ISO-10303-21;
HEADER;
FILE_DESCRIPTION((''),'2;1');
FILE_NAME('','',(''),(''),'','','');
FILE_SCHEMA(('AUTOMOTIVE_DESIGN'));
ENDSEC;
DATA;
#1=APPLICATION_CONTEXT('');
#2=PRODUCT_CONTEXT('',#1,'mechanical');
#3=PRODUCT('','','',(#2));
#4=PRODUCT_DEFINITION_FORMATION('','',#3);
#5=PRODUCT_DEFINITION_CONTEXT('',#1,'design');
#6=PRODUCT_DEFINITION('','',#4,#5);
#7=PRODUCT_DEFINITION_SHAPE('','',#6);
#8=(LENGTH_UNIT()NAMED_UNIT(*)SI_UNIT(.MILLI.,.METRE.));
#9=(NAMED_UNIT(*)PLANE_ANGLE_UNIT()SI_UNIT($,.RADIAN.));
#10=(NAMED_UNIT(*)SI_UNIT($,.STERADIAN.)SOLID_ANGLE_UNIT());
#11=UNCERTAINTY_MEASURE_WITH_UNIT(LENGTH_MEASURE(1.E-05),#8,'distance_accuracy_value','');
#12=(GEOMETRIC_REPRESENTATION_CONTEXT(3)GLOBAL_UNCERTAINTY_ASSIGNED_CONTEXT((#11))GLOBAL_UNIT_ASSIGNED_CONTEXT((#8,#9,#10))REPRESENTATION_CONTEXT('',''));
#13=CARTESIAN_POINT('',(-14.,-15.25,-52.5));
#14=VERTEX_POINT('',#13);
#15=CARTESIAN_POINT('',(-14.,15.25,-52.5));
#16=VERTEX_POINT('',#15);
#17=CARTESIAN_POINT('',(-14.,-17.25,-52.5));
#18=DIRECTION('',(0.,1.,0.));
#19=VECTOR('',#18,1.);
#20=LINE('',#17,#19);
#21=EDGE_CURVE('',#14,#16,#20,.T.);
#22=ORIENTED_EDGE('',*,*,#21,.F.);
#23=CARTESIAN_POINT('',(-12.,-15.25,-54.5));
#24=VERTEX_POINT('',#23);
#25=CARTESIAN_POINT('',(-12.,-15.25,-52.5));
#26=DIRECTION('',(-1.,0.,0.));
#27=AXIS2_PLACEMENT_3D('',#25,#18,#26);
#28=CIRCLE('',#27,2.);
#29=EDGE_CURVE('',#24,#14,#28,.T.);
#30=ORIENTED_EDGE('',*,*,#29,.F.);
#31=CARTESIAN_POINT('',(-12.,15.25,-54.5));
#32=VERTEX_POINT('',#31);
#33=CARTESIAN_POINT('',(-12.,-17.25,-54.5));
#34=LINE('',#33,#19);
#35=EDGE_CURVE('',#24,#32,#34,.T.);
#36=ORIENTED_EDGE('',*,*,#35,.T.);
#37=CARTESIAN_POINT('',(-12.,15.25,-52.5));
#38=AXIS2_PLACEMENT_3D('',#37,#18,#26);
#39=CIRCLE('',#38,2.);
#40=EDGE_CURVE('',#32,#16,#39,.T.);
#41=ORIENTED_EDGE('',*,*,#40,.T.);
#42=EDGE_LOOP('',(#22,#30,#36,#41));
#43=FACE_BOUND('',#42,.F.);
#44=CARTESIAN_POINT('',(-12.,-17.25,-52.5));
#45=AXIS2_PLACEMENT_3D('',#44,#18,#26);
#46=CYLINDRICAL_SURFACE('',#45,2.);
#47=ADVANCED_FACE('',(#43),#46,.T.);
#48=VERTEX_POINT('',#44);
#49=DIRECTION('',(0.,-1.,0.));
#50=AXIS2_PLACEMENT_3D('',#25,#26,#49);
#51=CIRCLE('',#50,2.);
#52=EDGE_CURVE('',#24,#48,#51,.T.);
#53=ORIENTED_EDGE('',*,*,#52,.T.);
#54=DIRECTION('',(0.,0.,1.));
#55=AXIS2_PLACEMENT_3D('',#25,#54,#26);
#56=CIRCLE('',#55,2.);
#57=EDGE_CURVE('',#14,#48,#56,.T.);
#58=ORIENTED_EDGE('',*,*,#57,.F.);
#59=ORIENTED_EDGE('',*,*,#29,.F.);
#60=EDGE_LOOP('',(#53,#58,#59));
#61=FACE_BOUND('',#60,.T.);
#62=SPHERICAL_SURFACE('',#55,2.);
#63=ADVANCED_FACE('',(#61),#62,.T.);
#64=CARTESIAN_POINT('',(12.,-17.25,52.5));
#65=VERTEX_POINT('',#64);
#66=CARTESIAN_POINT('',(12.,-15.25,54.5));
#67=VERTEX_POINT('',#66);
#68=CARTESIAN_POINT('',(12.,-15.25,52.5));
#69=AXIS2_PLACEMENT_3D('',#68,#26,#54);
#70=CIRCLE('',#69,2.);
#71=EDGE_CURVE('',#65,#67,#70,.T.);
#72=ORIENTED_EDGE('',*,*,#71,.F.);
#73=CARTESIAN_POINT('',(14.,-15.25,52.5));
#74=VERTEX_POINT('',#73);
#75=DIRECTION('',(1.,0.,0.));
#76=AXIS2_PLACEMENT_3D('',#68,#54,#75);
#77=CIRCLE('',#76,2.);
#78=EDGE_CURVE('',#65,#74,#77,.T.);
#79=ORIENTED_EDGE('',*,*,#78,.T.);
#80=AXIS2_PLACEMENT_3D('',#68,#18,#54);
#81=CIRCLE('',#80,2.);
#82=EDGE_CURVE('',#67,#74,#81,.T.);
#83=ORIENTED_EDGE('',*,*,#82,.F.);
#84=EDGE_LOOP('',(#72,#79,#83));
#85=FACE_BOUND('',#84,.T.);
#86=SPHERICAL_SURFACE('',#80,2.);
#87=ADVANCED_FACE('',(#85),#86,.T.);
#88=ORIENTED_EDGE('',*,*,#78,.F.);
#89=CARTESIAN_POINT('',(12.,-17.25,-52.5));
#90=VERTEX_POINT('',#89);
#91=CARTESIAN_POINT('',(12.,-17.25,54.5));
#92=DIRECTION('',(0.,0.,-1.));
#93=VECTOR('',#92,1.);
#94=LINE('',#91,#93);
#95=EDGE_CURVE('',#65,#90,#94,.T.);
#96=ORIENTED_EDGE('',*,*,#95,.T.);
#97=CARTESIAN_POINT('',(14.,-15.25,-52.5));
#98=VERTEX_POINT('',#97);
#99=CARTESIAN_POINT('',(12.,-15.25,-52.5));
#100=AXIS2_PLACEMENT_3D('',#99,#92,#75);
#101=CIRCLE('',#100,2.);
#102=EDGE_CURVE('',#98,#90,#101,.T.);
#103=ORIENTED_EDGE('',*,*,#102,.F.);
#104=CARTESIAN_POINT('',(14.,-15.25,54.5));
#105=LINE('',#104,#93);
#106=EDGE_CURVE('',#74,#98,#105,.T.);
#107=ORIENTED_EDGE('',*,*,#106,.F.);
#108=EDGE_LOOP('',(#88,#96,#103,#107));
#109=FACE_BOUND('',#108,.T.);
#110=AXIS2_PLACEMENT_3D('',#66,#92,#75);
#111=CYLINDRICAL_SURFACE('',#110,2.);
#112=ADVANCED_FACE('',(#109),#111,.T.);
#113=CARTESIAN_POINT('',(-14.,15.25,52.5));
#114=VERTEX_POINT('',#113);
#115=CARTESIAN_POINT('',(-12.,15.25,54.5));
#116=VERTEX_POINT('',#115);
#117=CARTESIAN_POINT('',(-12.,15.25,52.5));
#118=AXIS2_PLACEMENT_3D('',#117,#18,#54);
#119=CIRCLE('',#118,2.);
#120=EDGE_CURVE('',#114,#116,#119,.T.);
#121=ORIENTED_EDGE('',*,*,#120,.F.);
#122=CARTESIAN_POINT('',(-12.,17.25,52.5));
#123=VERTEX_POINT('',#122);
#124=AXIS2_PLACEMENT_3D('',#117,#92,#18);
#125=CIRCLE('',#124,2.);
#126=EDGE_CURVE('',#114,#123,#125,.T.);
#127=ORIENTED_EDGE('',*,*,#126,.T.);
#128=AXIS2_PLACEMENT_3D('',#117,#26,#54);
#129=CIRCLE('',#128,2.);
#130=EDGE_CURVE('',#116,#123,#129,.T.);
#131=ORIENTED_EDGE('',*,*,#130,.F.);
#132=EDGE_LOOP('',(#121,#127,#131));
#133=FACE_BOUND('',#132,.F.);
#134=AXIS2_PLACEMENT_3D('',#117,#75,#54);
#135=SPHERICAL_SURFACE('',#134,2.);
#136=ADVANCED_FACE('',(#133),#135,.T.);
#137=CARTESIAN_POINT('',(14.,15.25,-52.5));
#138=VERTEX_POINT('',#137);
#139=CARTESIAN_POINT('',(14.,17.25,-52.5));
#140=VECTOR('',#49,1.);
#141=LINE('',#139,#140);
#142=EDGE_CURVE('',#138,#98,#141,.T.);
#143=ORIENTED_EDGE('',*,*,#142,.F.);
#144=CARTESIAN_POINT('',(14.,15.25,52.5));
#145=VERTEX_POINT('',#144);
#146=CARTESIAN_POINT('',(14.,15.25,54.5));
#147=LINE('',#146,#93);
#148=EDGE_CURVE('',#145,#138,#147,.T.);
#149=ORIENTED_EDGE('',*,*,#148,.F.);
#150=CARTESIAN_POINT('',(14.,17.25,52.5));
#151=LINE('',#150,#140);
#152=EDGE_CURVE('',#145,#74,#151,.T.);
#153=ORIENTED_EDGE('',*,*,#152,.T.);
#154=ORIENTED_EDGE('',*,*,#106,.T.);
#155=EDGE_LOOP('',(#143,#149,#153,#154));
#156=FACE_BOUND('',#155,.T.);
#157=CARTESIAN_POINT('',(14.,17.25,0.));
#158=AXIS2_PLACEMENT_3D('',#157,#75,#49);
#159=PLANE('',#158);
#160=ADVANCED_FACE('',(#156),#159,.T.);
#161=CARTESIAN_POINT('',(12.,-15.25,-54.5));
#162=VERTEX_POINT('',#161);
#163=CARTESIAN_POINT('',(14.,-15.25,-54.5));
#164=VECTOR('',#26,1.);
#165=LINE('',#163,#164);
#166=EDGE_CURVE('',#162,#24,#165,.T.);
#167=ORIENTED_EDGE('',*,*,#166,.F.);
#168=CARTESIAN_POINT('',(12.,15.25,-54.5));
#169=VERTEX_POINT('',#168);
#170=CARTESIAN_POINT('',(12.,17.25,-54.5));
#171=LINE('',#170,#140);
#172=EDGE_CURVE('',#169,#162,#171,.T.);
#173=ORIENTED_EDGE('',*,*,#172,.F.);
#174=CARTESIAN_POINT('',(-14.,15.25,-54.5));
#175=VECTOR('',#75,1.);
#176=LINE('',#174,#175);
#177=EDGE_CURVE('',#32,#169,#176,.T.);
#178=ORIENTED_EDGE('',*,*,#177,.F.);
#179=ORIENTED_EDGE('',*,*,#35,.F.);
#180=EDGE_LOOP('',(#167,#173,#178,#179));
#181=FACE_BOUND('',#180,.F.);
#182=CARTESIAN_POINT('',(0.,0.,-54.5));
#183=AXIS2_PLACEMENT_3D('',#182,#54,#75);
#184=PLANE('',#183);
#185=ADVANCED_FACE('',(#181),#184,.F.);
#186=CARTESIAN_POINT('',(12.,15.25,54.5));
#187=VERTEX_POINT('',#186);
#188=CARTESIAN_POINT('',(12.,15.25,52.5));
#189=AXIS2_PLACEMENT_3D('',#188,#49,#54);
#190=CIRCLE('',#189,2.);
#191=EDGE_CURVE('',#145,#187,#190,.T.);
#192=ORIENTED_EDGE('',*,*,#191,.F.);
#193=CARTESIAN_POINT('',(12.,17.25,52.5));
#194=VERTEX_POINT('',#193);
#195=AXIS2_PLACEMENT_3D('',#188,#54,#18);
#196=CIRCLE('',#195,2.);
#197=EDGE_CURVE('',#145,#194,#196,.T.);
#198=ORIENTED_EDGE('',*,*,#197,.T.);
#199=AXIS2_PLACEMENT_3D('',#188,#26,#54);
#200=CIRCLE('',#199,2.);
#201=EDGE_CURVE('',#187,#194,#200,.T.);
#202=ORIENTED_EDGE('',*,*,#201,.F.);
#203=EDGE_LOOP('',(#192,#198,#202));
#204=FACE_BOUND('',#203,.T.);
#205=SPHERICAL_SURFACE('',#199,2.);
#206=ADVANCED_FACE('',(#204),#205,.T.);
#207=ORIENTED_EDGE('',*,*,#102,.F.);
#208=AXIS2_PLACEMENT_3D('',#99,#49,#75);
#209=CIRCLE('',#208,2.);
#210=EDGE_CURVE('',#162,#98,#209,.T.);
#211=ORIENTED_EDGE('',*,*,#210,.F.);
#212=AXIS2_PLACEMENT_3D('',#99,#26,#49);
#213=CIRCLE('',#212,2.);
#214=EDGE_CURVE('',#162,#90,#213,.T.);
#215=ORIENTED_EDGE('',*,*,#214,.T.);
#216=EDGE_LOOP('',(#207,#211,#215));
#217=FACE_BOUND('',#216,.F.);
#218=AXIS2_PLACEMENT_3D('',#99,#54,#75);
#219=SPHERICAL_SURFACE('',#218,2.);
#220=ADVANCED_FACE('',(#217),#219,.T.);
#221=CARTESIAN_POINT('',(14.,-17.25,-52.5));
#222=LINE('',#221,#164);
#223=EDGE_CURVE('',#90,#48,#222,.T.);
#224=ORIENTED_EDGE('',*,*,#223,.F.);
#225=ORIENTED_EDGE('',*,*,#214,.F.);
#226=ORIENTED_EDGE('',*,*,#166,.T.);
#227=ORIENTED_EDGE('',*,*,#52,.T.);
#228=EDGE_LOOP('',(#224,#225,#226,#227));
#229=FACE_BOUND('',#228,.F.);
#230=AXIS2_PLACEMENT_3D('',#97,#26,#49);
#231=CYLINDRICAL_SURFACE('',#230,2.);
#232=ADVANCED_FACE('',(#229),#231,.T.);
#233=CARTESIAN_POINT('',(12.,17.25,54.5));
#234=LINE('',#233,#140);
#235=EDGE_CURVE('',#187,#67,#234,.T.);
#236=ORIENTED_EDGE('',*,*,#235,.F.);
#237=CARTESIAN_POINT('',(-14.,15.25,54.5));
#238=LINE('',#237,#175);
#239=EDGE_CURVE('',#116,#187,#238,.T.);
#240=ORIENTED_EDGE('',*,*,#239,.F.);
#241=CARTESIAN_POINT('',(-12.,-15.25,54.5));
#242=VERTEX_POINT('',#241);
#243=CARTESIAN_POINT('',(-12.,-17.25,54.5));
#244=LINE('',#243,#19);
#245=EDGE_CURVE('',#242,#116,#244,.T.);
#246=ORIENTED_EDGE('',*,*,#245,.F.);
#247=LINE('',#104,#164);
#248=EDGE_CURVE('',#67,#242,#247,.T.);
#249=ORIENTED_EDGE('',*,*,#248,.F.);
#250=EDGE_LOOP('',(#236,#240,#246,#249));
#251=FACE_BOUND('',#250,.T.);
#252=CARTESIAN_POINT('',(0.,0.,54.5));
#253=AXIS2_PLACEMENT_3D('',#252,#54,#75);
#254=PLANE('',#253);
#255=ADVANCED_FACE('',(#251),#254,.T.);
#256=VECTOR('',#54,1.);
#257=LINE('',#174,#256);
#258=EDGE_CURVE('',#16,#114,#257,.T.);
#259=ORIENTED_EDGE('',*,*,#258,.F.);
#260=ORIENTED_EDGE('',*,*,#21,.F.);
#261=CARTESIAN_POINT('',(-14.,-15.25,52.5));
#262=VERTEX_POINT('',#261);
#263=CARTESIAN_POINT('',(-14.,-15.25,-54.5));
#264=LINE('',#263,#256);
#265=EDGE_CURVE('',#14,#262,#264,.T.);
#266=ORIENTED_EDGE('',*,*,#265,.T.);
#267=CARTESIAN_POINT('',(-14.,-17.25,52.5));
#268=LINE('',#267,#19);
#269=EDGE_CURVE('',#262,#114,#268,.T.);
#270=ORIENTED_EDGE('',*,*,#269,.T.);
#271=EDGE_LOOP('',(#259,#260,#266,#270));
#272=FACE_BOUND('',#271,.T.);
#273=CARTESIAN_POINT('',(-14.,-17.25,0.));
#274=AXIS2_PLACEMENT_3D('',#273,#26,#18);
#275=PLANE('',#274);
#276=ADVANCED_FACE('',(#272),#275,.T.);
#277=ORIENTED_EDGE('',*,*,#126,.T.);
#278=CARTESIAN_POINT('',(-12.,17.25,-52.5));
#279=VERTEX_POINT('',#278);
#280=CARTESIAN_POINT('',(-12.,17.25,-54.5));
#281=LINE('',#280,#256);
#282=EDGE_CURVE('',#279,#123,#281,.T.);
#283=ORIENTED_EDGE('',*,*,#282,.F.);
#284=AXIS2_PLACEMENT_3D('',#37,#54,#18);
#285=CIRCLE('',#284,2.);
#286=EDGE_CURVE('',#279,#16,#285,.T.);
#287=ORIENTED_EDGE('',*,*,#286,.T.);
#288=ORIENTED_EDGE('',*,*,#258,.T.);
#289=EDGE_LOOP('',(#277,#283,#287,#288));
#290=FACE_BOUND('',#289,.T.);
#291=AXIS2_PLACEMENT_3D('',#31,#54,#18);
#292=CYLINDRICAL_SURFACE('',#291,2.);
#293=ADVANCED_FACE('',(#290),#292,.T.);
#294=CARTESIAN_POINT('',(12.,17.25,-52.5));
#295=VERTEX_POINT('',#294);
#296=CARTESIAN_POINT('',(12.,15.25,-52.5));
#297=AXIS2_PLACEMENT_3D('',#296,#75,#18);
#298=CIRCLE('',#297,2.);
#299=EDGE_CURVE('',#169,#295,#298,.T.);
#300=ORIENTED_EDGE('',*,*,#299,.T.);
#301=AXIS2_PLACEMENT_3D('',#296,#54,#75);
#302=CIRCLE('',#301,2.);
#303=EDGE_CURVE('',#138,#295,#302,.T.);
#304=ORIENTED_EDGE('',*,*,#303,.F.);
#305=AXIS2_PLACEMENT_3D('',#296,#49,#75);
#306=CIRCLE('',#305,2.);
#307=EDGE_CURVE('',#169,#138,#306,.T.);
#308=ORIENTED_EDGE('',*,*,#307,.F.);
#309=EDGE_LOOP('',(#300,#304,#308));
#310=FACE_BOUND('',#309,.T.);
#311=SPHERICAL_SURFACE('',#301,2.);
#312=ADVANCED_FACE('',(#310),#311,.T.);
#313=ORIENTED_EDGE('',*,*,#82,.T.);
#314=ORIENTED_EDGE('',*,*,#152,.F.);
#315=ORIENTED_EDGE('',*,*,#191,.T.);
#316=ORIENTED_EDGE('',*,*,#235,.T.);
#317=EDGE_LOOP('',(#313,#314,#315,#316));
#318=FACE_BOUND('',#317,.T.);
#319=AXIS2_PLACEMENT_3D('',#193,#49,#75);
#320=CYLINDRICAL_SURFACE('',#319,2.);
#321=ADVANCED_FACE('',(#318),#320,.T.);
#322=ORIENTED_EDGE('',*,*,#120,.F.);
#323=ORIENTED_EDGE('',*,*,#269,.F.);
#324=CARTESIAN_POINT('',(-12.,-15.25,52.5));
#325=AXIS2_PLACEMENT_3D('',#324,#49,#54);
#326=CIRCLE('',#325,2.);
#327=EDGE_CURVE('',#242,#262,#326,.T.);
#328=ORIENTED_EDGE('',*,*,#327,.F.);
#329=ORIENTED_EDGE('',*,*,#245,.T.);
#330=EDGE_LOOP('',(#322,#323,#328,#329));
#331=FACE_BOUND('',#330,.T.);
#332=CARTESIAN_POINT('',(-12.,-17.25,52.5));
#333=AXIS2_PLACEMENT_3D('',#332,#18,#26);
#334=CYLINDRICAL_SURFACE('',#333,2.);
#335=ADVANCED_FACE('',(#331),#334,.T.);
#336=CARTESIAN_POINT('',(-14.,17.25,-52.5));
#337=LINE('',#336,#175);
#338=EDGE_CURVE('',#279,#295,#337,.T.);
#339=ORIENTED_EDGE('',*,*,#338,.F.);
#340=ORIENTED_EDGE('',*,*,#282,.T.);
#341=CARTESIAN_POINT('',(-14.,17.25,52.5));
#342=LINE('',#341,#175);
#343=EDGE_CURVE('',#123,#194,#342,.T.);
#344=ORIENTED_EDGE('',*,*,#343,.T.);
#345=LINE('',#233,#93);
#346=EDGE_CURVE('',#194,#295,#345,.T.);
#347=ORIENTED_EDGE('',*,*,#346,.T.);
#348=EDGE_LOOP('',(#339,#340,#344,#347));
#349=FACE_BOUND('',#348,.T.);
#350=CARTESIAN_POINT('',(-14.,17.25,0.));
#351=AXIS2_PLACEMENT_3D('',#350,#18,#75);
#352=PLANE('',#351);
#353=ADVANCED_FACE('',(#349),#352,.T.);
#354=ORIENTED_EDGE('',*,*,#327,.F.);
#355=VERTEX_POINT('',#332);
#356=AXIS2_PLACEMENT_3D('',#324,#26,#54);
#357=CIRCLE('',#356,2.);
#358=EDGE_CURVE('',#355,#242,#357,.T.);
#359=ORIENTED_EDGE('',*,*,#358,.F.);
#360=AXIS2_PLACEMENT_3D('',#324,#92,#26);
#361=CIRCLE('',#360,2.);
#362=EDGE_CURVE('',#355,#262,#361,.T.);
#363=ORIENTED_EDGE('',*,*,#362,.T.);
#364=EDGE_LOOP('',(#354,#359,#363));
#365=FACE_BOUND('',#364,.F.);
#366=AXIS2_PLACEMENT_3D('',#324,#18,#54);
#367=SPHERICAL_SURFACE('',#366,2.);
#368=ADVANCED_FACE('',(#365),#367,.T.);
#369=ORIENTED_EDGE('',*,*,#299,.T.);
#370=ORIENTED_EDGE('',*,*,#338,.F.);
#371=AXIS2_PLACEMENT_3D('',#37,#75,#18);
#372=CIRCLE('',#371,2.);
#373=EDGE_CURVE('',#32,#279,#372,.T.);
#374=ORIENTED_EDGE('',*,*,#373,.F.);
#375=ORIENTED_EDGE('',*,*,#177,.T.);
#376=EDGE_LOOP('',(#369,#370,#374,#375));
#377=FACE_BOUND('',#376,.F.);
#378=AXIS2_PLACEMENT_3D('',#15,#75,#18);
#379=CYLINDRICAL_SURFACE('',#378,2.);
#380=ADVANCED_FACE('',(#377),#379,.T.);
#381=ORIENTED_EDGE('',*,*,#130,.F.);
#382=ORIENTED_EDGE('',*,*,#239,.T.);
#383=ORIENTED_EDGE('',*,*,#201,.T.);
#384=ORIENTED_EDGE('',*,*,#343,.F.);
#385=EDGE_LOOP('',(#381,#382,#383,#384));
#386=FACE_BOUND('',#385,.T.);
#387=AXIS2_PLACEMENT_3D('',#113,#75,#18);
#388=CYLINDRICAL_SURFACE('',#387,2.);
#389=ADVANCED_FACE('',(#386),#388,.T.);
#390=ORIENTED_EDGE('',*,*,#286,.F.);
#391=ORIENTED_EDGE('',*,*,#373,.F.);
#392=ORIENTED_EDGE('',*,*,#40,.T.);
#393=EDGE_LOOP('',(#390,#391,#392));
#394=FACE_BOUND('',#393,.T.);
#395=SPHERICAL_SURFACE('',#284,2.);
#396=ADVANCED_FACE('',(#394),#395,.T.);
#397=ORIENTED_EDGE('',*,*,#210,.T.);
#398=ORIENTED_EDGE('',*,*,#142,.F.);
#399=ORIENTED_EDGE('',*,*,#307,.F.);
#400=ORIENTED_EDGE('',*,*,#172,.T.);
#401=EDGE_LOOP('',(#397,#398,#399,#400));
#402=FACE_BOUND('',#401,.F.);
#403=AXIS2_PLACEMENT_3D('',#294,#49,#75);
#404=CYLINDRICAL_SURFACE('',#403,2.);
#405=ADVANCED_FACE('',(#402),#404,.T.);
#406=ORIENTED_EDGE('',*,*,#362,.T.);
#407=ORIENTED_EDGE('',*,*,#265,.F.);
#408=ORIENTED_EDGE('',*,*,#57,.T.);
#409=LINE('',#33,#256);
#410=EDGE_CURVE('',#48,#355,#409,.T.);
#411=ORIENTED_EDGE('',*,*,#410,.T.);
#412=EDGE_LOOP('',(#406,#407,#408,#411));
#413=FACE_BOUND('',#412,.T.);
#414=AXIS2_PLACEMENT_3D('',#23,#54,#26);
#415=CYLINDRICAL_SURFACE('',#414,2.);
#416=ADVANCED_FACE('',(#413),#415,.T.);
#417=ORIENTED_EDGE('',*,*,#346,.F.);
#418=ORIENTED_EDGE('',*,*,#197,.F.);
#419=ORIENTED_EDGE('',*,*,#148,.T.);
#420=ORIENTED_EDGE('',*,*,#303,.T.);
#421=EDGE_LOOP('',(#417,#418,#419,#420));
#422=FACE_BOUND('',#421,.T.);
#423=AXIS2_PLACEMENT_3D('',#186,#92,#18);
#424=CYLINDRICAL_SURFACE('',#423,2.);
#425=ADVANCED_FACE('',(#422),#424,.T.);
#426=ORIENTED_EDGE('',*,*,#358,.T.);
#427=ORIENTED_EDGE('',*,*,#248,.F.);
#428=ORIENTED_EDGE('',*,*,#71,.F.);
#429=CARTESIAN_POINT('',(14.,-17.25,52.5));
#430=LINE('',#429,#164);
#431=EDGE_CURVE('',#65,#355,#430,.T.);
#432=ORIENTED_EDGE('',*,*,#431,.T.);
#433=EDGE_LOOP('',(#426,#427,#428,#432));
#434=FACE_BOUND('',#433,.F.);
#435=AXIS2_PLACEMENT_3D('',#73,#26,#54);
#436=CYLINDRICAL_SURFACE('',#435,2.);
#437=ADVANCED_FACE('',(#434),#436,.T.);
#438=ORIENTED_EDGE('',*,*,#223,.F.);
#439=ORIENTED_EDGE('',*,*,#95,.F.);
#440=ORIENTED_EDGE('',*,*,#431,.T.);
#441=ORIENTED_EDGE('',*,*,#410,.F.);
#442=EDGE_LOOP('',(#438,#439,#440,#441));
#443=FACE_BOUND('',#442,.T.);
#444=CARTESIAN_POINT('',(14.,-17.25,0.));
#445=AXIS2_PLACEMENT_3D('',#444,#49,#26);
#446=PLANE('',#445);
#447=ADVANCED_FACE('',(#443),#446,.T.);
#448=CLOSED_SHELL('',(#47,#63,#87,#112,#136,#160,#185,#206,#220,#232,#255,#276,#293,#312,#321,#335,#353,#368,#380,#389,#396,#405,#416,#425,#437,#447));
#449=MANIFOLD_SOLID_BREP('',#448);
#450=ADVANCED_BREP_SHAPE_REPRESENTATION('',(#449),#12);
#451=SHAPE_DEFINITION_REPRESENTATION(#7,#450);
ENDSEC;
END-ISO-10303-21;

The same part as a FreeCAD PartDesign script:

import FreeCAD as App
import Part
import Sketcher
from FreeCAD import Vector
Q = App.Units.Quantity

doc = App.newDocument("Part")
body = doc.addObject("PartDesign::Body", "Body")

# Sketch on XY plane
sketch1 = doc.addObject("Sketcher::SketchObject", "Sketch")
body.addObject(sketch1)
sketch1.AttachmentSupport = (doc.XY_Plane, [""])
sketch1.MapMode = "FlatFace"
sketch1.addGeometry([
    Part.LineSegment(Vector(14, 17, 0), Vector(-14, 17, 0)),
    Part.LineSegment(Vector(-14, 17, 0), Vector(-14, -17, 0)),
    Part.LineSegment(Vector(-14, -17, 0), Vector(14, -17, 0)),
    Part.LineSegment(Vector(14, -17, 0), Vector(14, 17, 0)),
], False)
sketch1.addConstraint([
    Sketcher.Constraint("Coincident", 0, 2, 1, 1),
    Sketcher.Constraint("Coincident", 1, 2, 2, 1),
    Sketcher.Constraint("Coincident", 2, 2, 3, 1),
    Sketcher.Constraint("Coincident", 3, 2, 0, 1),
    Sketcher.Constraint("Horizontal", 0),
    Sketcher.Constraint("Vertical", 1),
    Sketcher.Constraint("Horizontal", 2),
    Sketcher.Constraint("Vertical", 3),
    Sketcher.Constraint("Symmetric", 0, 2, 2, 2, -1, 1),
    Sketcher.Constraint("DistanceX", 0, 2, 0, 1, Q("28 mm")),
    Sketcher.Constraint("DistanceY", 1, 2, 1, 1, Q("34.5 mm")),
])
pad1 = doc.addObject("PartDesign::Pad", "Pad")
body.addObject(pad1)
pad1.Profile = sketch1
pad1.Length = 109
pad1.Midplane = True
doc.recompute()

fillet = doc.addObject("PartDesign::Fillet", "Fillet")
body.addObject(fillet)
fillet.Base = (pad1, ["Edge1"])
fillet.UseAllEdges = True
fillet.Radius = 2

doc.recompute()
